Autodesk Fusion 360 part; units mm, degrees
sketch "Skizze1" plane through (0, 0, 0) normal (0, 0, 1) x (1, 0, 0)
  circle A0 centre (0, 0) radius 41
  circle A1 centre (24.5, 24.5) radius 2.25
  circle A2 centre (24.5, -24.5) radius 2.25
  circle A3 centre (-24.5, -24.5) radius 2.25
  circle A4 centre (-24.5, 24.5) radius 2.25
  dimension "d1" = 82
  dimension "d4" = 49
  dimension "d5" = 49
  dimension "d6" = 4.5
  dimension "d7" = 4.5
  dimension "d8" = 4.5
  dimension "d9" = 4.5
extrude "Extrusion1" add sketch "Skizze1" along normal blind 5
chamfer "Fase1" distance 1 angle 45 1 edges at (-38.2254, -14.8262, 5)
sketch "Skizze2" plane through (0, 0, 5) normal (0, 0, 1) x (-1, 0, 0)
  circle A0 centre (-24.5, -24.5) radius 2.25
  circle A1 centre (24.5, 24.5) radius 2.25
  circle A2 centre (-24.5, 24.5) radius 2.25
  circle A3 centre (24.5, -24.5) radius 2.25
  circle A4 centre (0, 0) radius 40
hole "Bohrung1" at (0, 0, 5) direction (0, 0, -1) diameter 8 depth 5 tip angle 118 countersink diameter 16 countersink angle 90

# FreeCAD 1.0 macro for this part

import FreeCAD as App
import Part
import Sketcher
Q = App.Units.Quantity


def edges_at(feature, points):
    """Names of the edges that pass closest to the given points."""
    edges = feature.Shape.Edges
    near = lambda p: min(range(len(edges)), key=lambda i: edges[i].distToShape(Part.Vertex(*p))[0])
    return sorted({f"Edge{near(p) + 1}" for p in points})

doc = App.newDocument("Part")
params = doc.addObject("Spreadsheet::Sheet", "Params")
for row, (alias, value) in enumerate([
    ("sketch1_diameter", "82 mm"),
    ("sketch1_diameter2", "4.5 mm"),
    ("pad1_length", "5 mm"),
    ("chamfer_size", "1 mm"),
    ("sketch2_diameter", "8 mm"),
    ("hole_diameter", "8 mm"),
    ("hole_depth", "5 mm"),
    ("hole_csink_diameter", "16 mm"),
], start=1):
    params.set(f"A{row}", alias)
    params.set(f"B{row}", "=" + value)
    params.setAlias(f"B{row}", alias)

body = doc.addObject("PartDesign::Body", "Body")

# Sketch on XY plane
sketch1 = body.newObject("Sketcher::SketchObject", "Sketch")
sketch1.AttachmentSupport = (doc.getObject("XY_Plane"), [""])
sketch1.MapMode = "FlatFace"
sketch1.addGeometry(Part.Circle(App.Vector(0, 0, 0), App.Vector(0, 0, 1), 41), False)
sketch1.addGeometry(Part.Circle(App.Vector(-24.5, -24.5, 0), App.Vector(0, 0, 1), 2.25), False)
sketch1.addGeometry(Part.Circle(App.Vector(24.5, -24.5, 0), App.Vector(0, 0, 1), 2.25), False)
sketch1.addGeometry(Part.Circle(App.Vector(-24.5, 24.5, 0), App.Vector(0, 0, 1), 2.25), False)
sketch1.addGeometry(Part.Circle(App.Vector(24.5, 24.5, 0), App.Vector(0, 0, 1), 2.25), False)
sketch1.addConstraint(Sketcher.Constraint("Coincident", 0, 3, -1, 1))
sketch1.addConstraint(Sketcher.Constraint("Equal", 1, 2))
sketch1.addConstraint(Sketcher.Constraint("Equal", 2, 3))
sketch1.addConstraint(Sketcher.Constraint("Equal", 3, 4))
sketch1.addConstraint(Sketcher.Constraint("Symmetric", 2, 3, 3, 3, -1, 1))
sketch1.addConstraint(Sketcher.Constraint("Symmetric", 1, 3, 4, 3, -1, 1))
sketch1.addConstraint(Sketcher.Constraint("Symmetric", 1, 3, 2, 3, -2))
sketch1.addConstraint(Sketcher.Constraint("Diameter", 0, Q("82 mm")))
sketch1.addConstraint(Sketcher.Constraint("Diameter", 1, Q("4.5 mm")))
sketch1.addConstraint(Sketcher.Constraint("DistanceX", 1, 3, 2, 3, Q("49 mm")))
sketch1.addConstraint(Sketcher.Constraint("DistanceY", 1, 3, 3, 3, Q("49 mm")))
sketch1.setExpression("Constraints[7]", "Params.sketch1_diameter")
sketch1.setExpression("Constraints[8]", "Params.sketch1_diameter2")
pad1 = body.newObject("PartDesign::Pad", "Pad")
pad1.Profile = sketch1
pad1.setExpression("Length", "Params.pad1_length")
doc.recompute()

chamfer = body.newObject("PartDesign::Chamfer", "Chamfer")
chamfer.Base = (pad1, edges_at(pad1, [(-38.225, -14.826, 5)]))
chamfer.setExpression("Size", "Params.chamfer_size")

# Sketch on XY plane
sketch2 = body.newObject("Sketcher::SketchObject", "Sketch001")
sketch2.AttachmentSupport = (doc.getObject("XY_Plane"), [""])
sketch2.MapMode = "FlatFace"
sketch2.AttachmentOffset = App.Placement(App.Vector(0, 0, 5), App.Rotation())
sketch2.addGeometry(Part.Circle(App.Vector(0, 0, 0), App.Vector(0, 0, 1), 4), False)
sketch2.addConstraint(Sketcher.Constraint("Coincident", 0, 3, -1, 1))
sketch2.addConstraint(Sketcher.Constraint("Diameter", 0, Q("8 mm")))
sketch2.setExpression("Constraints[1]", "Params.sketch2_diameter")
doc.recompute()
hole = body.newObject("PartDesign::Hole", "Hole")
hole.Profile = sketch2
hole.ThreadType = "None"
hole.setExpression("Diameter", "Params.hole_diameter")
hole.DepthType = "Dimension"
hole.setExpression("Depth", "Params.hole_depth")
hole.DrillPoint = "Angled"
hole.DrillPointAngle = 118
hole.HoleCutType = "Countersink"
hole.setExpression("HoleCutDiameter", "Params.hole_csink_diameter")
hole.HoleCutCountersinkAngle = 90

doc.recompute()
